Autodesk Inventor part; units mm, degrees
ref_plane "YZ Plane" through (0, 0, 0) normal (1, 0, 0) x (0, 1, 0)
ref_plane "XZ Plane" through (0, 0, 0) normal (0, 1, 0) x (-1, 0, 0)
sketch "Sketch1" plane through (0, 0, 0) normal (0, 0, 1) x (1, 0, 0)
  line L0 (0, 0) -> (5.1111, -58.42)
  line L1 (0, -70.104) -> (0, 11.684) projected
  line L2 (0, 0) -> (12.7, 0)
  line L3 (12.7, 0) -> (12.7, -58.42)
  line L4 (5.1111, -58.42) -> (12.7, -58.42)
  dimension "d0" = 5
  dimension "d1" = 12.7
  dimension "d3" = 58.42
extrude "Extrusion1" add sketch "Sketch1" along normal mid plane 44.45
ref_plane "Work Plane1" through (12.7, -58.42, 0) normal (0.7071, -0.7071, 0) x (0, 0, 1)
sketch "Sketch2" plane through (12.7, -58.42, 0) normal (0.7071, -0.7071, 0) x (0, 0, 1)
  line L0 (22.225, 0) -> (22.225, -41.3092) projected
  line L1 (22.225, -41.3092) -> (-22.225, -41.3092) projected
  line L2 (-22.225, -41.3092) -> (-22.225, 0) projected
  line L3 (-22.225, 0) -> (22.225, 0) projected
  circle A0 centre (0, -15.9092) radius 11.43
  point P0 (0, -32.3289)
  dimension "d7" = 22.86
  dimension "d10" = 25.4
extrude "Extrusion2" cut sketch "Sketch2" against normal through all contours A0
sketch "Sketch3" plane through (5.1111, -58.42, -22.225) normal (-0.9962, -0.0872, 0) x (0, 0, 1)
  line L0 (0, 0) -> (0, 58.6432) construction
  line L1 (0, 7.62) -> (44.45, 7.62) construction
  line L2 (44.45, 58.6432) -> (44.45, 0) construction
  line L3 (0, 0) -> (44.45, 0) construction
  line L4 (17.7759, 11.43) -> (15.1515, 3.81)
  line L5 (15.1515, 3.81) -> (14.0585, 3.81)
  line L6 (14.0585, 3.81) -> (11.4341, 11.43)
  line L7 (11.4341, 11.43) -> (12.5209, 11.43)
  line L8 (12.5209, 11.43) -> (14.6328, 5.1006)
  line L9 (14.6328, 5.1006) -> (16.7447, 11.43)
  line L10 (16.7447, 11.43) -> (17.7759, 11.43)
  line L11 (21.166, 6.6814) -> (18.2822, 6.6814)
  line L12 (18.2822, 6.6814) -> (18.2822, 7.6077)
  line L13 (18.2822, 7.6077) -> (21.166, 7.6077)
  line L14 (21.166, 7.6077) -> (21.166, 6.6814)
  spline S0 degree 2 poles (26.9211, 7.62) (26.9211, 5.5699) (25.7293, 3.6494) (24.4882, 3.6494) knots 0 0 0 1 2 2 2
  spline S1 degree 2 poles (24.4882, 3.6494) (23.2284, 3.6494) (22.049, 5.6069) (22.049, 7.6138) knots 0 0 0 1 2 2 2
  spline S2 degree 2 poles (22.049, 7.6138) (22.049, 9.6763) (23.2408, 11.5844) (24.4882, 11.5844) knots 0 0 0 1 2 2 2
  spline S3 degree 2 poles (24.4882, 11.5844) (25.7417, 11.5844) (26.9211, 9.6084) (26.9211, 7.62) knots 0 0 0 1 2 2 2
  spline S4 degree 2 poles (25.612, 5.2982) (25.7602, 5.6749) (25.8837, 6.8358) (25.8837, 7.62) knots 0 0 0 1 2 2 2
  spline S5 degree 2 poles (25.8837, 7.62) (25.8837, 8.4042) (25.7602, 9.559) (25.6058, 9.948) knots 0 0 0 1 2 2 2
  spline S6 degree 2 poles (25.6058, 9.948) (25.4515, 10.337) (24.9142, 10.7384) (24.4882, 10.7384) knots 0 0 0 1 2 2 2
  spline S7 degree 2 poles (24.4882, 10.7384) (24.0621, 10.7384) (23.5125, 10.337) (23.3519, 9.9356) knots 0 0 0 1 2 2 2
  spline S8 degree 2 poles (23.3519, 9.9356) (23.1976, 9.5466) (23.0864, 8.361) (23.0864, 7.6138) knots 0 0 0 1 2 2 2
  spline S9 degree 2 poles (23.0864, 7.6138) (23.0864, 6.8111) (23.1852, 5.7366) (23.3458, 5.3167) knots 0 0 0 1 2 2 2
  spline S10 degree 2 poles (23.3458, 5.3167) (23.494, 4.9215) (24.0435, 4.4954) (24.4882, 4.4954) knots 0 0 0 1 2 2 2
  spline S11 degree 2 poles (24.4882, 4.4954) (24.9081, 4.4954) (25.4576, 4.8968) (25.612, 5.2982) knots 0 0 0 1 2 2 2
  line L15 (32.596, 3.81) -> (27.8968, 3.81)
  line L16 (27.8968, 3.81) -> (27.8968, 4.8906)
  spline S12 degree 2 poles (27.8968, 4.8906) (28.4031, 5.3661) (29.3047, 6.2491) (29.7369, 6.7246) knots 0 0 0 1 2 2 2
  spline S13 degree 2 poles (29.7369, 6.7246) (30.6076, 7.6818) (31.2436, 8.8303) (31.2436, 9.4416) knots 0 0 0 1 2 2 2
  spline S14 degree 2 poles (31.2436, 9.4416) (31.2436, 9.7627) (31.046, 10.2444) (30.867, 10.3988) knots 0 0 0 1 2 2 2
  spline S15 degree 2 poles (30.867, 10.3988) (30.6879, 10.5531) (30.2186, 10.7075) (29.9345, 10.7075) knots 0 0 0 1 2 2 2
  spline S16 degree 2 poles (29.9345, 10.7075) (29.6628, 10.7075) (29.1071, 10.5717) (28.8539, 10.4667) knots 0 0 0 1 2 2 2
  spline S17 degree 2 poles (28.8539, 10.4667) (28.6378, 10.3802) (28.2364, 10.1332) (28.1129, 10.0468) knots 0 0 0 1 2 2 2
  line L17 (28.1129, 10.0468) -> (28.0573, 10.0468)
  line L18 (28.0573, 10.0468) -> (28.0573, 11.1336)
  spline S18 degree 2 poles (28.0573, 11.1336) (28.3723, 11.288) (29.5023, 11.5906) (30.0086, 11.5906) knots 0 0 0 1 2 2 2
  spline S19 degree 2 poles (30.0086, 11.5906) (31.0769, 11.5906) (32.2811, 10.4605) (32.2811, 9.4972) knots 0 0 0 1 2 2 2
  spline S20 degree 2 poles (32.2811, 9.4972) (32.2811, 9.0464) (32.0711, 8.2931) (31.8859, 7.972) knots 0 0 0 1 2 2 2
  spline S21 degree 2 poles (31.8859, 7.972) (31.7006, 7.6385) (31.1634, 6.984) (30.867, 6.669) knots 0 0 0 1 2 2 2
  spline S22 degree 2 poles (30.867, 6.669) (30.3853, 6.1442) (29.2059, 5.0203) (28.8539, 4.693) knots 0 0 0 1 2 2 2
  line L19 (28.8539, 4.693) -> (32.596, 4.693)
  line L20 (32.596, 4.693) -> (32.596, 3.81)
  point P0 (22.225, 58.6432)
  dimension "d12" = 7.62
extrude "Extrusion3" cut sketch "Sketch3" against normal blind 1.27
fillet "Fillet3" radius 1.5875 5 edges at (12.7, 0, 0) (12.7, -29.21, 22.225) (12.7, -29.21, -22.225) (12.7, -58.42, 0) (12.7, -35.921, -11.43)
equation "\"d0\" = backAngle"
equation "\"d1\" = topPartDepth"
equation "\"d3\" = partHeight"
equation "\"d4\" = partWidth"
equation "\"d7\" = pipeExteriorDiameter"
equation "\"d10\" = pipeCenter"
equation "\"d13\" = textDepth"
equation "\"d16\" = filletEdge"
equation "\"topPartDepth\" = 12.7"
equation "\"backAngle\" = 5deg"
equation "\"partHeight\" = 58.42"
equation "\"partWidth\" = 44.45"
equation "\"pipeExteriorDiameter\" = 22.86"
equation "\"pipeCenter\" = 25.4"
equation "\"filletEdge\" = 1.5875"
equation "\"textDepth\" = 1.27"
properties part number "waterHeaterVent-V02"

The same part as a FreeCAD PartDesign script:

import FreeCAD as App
import Part
import Sketcher
from FreeCAD import Vector
Q = App.Units.Quantity


def edges_at(feature, points):
    """Names of the edges that pass closest to the given points."""
    edges = feature.Shape.Edges
    near = lambda p: min(range(len(edges)), key=lambda i: edges[i].distToShape(Part.Vertex(*p))[0])
    return sorted({f"Edge{near(p) + 1}" for p in points})

doc = App.newDocument("Part")
body = doc.addObject("PartDesign::Body", "Body")

# Sketch on XY plane
sketch1 = doc.addObject("Sketcher::SketchObject", "Sketch")
body.addObject(sketch1)
sketch1.AttachmentSupport = (doc.XY_Plane, [""])
sketch1.MapMode = "FlatFace"
sketch1.addGeometry([
    Part.LineSegment(Vector(12.7, 0, 0), Vector(0, 0, 0)),
    Part.LineSegment(Vector(0, 0, 0), Vector(5.1111, -58.42, 0)),
    Part.LineSegment(Vector(5.1111, -58.42, 0), Vector(12.7, -58.42, 0)),
    Part.LineSegment(Vector(12.7, -58.42, 0), Vector(12.7, 0, 0)),
], False)
sketch1.addConstraint([
    Sketcher.Constraint("Coincident", 0, 2, 1, 1),
    Sketcher.Constraint("Coincident", 1, 2, 2, 1),
    Sketcher.Constraint("Coincident", 2, 2, 3, 1),
    Sketcher.Constraint("Coincident", 3, 2, 0, 1),
    Sketcher.Constraint("Horizontal", 0),
    Sketcher.Constraint("Horizontal", 2),
    Sketcher.Constraint("Vertical", 3),
    Sketcher.Constraint("Coincident", 0, 2, -1, 1),
    Sketcher.Constraint("DistanceX", 0, 2, 0, 1, Q("0.5 in")),
    Sketcher.Constraint("DistanceY", 3, 1, 3, 2, Q("2.3 in")),
    Sketcher.Constraint("Angle", 1, Q("-85 deg")),
])
pad1 = doc.addObject("PartDesign::Pad", "Pad")
body.addObject(pad1)
pad1.Profile = sketch1
pad1.Length = Q("1.75 in")
pad1.Midplane = True

# Sketch on an angled plane
sketch2 = doc.addObject("Sketcher::SketchObject", "Sketch001")
body.addObject(sketch2)
sketch2.Placement = App.Placement(Vector(12.7, -58.42, 0), App.Rotation(Vector(0, 0, 1), Vector(-0.707106781, -0.707106781, 0), Vector(0.707106781, -0.707106781, 0), "ZXY"))
sketch2.addGeometry(Part.Circle(Vector(0, -15.9092, 0), Vector(0, 0, 1), 11.43), False)
sketch2.addConstraint([
    Sketcher.Constraint("PointOnObject", 0, 3, -2),
    Sketcher.Constraint("Diameter", 0, Q("0.9 in")),
    Sketcher.Constraint("DistanceY", 0, 3, -1, 1, 15.9092),
])
pocket1 = doc.addObject("PartDesign::Pocket", "Pocket")
body.addObject(pocket1)
pocket1.Profile = sketch2
pocket1.Type = "ThroughAll"

# Sketch on an angled plane
sketch3 = doc.addObject("Sketcher::SketchObject", "Sketch002")
body.addObject(sketch3)
sketch3.Placement = App.Placement(Vector(5.1111, -58.42, -22.225), App.Rotation(Vector(0, 0, 1), Vector(-0.087155743, 0.996194698, 0), Vector(-0.996194698, -0.087155743, 0), "ZXY"))
sketch3.addGeometry([
    Part.LineSegment(Vector(15.1515, 3.81, 0), Vector(17.7759, 11.43, 0)),  # 0
    Part.LineSegment(Vector(17.7759, 11.43, 0), Vector(16.7447, 11.43, 0)),  # 1
    Part.LineSegment(Vector(16.7447, 11.43, 0), Vector(14.6328, 5.1006, 0)),  # 2
    Part.LineSegment(Vector(14.6328, 5.1006, 0), Vector(12.5209, 11.43, 0)),  # 3
    Part.LineSegment(Vector(12.5209, 11.43, 0), Vector(11.4341, 11.43, 0)),  # 4
    Part.LineSegment(Vector(11.4341, 11.43, 0), Vector(14.0585, 3.81, 0)),  # 5
    Part.LineSegment(Vector(14.0585, 3.81, 0), Vector(15.1515, 3.81, 0)),  # 6
    Part.LineSegment(Vector(18.2822, 6.6814, 0), Vector(21.166, 6.6814, 0)),  # 7
    Part.LineSegment(Vector(21.166, 6.6814, 0), Vector(21.166, 7.6077, 0)),  # 8
    Part.LineSegment(Vector(21.166, 7.6077, 0), Vector(18.2822, 7.6077, 0)),  # 9
    Part.LineSegment(Vector(18.2822, 7.6077, 0), Vector(18.2822, 6.6814, 0)),  # 10
    Part.BSplineCurve([Vector(26.9211, 7.62, 0), Vector(26.9211, 5.5699, 0), Vector(25.7293, 3.6494, 0), Vector(24.4882, 3.6494, 0)], [3, 1, 3], [0, 1, 2], False, 2, [1, 1, 1, 1], False),  # 11
    Part.BSplineCurve([Vector(24.4882, 11.5844, 0), Vector(25.7417, 11.5844, 0), Vector(26.9211, 9.6084, 0), Vector(26.9211, 7.62, 0)], [3, 1, 3], [0, 1, 2], False, 2, [1, 1, 1, 1], False),  # 12
    Part.BSplineCurve([Vector(22.049, 7.6138, 0), Vector(22.049, 9.6763, 0), Vector(23.2408, 11.5844, 0), Vector(24.4882, 11.5844, 0)], [3, 1, 3], [0, 1, 2], False, 2, [1, 1, 1, 1], False),  # 13
    Part.BSplineCurve([Vector(24.4882, 3.6494, 0), Vector(23.2284, 3.6494, 0), Vector(22.049, 5.6069, 0), Vector(22.049, 7.6138, 0)], [3, 1, 3], [0, 1, 2], False, 2, [1, 1, 1, 1], False),  # 14
    Part.BSplineCurve([Vector(25.612, 5.2982, 0), Vector(25.7602, 5.6749, 0), Vector(25.8837, 6.8358, 0), Vector(25.8837, 7.62, 0)], [3, 1, 3], [0, 1, 2], False, 2, [1, 1, 1, 1], False),  # 15
    Part.BSplineCurve([Vector(24.4882, 4.4954, 0), Vector(24.9081, 4.4954, 0), Vector(25.4576, 4.8968, 0), Vector(25.612, 5.2982, 0)], [3, 1, 3], [0, 1, 2], False, 2, [1, 1, 1, 1], False),  # 16
    Part.BSplineCurve([Vector(23.3458, 5.3167, 0), Vector(23.494, 4.9215, 0), Vector(24.0435, 4.4954, 0), Vector(24.4882, 4.4954, 0)], [3, 1, 3], [0, 1, 2], False, 2, [1, 1, 1, 1], False),  # 17
    Part.BSplineCurve([Vector(23.0864, 7.6138, 0), Vector(23.0864, 6.8111, 0), Vector(23.1852, 5.7366, 0), Vector(23.3458, 5.3167, 0)], [3, 1, 3], [0, 1, 2], False, 2, [1, 1, 1, 1], False),  # 18
    Part.BSplineCurve([Vector(23.3519, 9.9356, 0), Vector(23.1976, 9.5466, 0), Vector(23.0864, 8.361, 0), Vector(23.0864, 7.6138, 0)], [3, 1, 3], [0, 1, 2], False, 2, [1, 1, 1, 1], False),  # 19
    Part.BSplineCurve([Vector(24.4882, 10.7384, 0), Vector(24.0621, 10.7384, 0), Vector(23.5125, 10.337, 0), Vector(23.3519, 9.9356, 0)], [3, 1, 3], [0, 1, 2], False, 2, [1, 1, 1, 1], False),  # 20
    Part.BSplineCurve([Vector(25.6058, 9.948, 0), Vector(25.4515, 10.337, 0), Vector(24.9142, 10.7384, 0), Vector(24.4882, 10.7384, 0)], [3, 1, 3], [0, 1, 2], False, 2, [1, 1, 1, 1], False),  # 21
    Part.BSplineCurve([Vector(25.8837, 7.62, 0), Vector(25.8837, 8.4042, 0), Vector(25.7602, 9.559, 0), Vector(25.6058, 9.948, 0)], [3, 1, 3], [0, 1, 2], False, 2, [1, 1, 1, 1], False),  # 22
    Part.LineSegment(Vector(27.8968, 3.81, 0), Vector(32.596, 3.81, 0)),  # 23
    Part.LineSegment(Vector(32.596, 3.81, 0), Vector(32.596, 4.693, 0)),  # 24
    Part.LineSegment(Vector(32.596, 4.693, 0), Vector(28.8539, 4.693, 0)),  # 25
    Part.BSplineCurve([Vector(30.867, 6.669, 0), Vector(30.3853, 6.1442, 0), Vector(29.2059, 5.0203, 0), Vector(28.8539, 4.693, 0)], [3, 1, 3], [0, 1, 2], False, 2, [1, 1, 1, 1], False),  # 26
    Part.BSplineCurve([Vector(31.8859, 7.972, 0), Vector(31.7006, 7.6385, 0), Vector(31.1634, 6.984, 0), Vector(30.867, 6.669, 0)], [3, 1, 3], [0, 1, 2], False, 2, [1, 1, 1, 1], False),  # 27
    Part.BSplineCurve([Vector(32.2811, 9.4972, 0), Vector(32.2811, 9.0464, 0), Vector(32.0711, 8.2931, 0), Vector(31.8859, 7.972, 0)], [3, 1, 3], [0, 1, 2], False, 2, [1, 1, 1, 1], False),  # 28
    Part.BSplineCurve([Vector(30.0086, 11.5906, 0), Vector(31.0769, 11.5906, 0), Vector(32.2811, 10.4605, 0), Vector(32.2811, 9.4972, 0)], [3, 1, 3], [0, 1, 2], False, 2, [1, 1, 1, 1], False),  # 29
    Part.BSplineCurve([Vector(28.0573, 11.1336, 0), Vector(28.3723, 11.288, 0), Vector(29.5023, 11.5906, 0), Vector(30.0086, 11.5906, 0)], [3, 1, 3], [0, 1, 2], False, 2, [1, 1, 1, 1], False),  # 30
    Part.LineSegment(Vector(28.0573, 11.1336, 0), Vector(28.0573, 10.0468, 0)),  # 31
    Part.LineSegment(Vector(28.0573, 10.0468, 0), Vector(28.1129, 10.0468, 0)),  # 32
    Part.BSplineCurve([Vector(28.8539, 10.4667, 0), Vector(28.6378, 10.3802, 0), Vector(28.2364, 10.1332, 0), Vector(28.1129, 10.0468, 0)], [3, 1, 3], [0, 1, 2], False, 2, [1, 1, 1, 1], False),  # 33
    Part.BSplineCurve([Vector(29.9345, 10.7075, 0), Vector(29.6628, 10.7075, 0), Vector(29.1071, 10.5717, 0), Vector(28.8539, 10.4667, 0)], [3, 1, 3], [0, 1, 2], False, 2, [1, 1, 1, 1], False),  # 34
    Part.BSplineCurve([Vector(30.867, 10.3988, 0), Vector(30.6879, 10.5531, 0), Vector(30.2186, 10.7075, 0), Vector(29.9345, 10.7075, 0)], [3, 1, 3], [0, 1, 2], False, 2, [1, 1, 1, 1], False),  # 35
    Part.BSplineCurve([Vector(31.2436, 9.4416, 0), Vector(31.2436, 9.7627, 0), Vector(31.046, 10.2444, 0), Vector(30.867, 10.3988, 0)], [3, 1, 3], [0, 1, 2], False, 2, [1, 1, 1, 1], False),  # 36
    Part.BSplineCurve([Vector(29.7369, 6.7246, 0), Vector(30.6076, 7.6818, 0), Vector(31.2436, 8.8303, 0), Vector(31.2436, 9.4416, 0)], [3, 1, 3], [0, 1, 2], False, 2, [1, 1, 1, 1], False),  # 37
    Part.BSplineCurve([Vector(27.8968, 4.8906, 0), Vector(28.4031, 5.3661, 0), Vector(29.3047, 6.2491, 0), Vector(29.7369, 6.7246, 0)], [3, 1, 3], [0, 1, 2], False, 2, [1, 1, 1, 1], False),  # 38
    Part.LineSegment(Vector(27.8968, 4.8906, 0), Vector(27.8968, 3.81, 0)),  # 39
], False)
sketch3.addConstraint([
    Sketcher.Constraint("Block", 11),
    Sketcher.Constraint("Block", 12),
    Sketcher.Constraint("Block", 13),
    Sketcher.Constraint("Block", 14),
    Sketcher.Constraint("Block", 15),
    Sketcher.Constraint("Block", 16),
    Sketcher.Constraint("Block", 17),
    Sketcher.Constraint("Block", 18),
    Sketcher.Constraint("Block", 19),
    Sketcher.Constraint("Block", 20),
    Sketcher.Constraint("Block", 21),
    Sketcher.Constraint("Block", 22),
    Sketcher.Constraint("Block", 26),
    Sketcher.Constraint("Block", 27),
    Sketcher.Constraint("Block", 28),
    Sketcher.Constraint("Block", 29),
    Sketcher.Constraint("Block", 30),
    Sketcher.Constraint("Block", 33),
    Sketcher.Constraint("Block", 34),
    Sketcher.Constraint("Block", 35),
    Sketcher.Constraint("Block", 36),
    Sketcher.Constraint("Block", 37),
    Sketcher.Constraint("Block", 38),
    Sketcher.Constraint("Coincident", 0, 2, 1, 1),
    Sketcher.Constraint("Coincident", 1, 2, 2, 1),
    Sketcher.Constraint("Coincident", 2, 2, 3, 1),
    Sketcher.Constraint("Coincident", 3, 2, 4, 1),
    Sketcher.Constraint("Coincident", 4, 2, 5, 1),
    Sketcher.Constraint("Coincident", 5, 2, 6, 1),
    Sketcher.Constraint("Coincident", 6, 2, 0, 1),
    Sketcher.Constraint("Coincident", 7, 2, 8, 1),
    Sketcher.Constraint("Coincident", 8, 2, 9, 1),
    Sketcher.Constraint("Coincident", 9, 2, 10, 1),
    Sketcher.Constraint("Coincident", 10, 2, 7, 1),
    Sketcher.Constraint("Coincident", 23, 2, 24, 1),
    Sketcher.Constraint("Coincident", 24, 2, 25, 1),
    Sketcher.Constraint("Coincident", 25, 2, 26, 2),
    Sketcher.Constraint("Coincident", 30, 1, 31, 1),
    Sketcher.Constraint("Coincident", 31, 2, 32, 1),
    Sketcher.Constraint("Coincident", 32, 2, 33, 2),
    Sketcher.Constraint("Coincident", 38, 1, 39, 1),
    Sketcher.Constraint("Coincident", 39, 2, 23, 1),
    Sketcher.Constraint("Horizontal", 1),
    Sketcher.Constraint("Horizontal", 4),
    Sketcher.Constraint("Horizontal", 6),
    Sketcher.Constraint("Horizontal", 7),
    Sketcher.Constraint("Vertical", 8),
    Sketcher.Constraint("Horizontal", 9),
    Sketcher.Constraint("Vertical", 10),
    Sketcher.Constraint("Horizontal", 23),
    Sketcher.Constraint("Vertical", 24),
    Sketcher.Constraint("Horizontal", 25),
    Sketcher.Constraint("Vertical", 31),
    Sketcher.Constraint("Horizontal", 32),
    Sketcher.Constraint("Vertical", 39),
    Sketcher.Constraint("DistanceY", 5, 2, 3, 2, Q("0.3 in")),
    Sketcher.Constraint("DistanceY", 5, 2, 1, 2, Q("0.3 in")),
    Sketcher.Constraint("DistanceY", 23, 2, 0, 2, Q("0.3 in")),
    Sketcher.Constraint("DistanceX", 23, 1, 23, 2, Q("0.185 in")),
    Sketcher.Constraint("DistanceY", -1, 1, 0, 2, Q("0.45 in")),
    Sketcher.Constraint("DistanceX", 7, 2, 23, 2, Q("0.45 in")),
    Sketcher.Constraint("DistanceX", 1, 2, 1, 1, Q("0.0406 in")),
    Sketcher.Constraint("Distance", 0, Q("0.3173 in")),
    Sketcher.Constraint("Distance", 2, Q("0.2627 in")),
    Sketcher.Constraint("Distance", 3, Q("0.2627 in")),
    Sketcher.Constraint("Distance", 5, Q("0.3173 in")),
    Sketcher.Constraint("DistanceX", 4, 2, 4, 1, 1.0868),
    Sketcher.Constraint("DistanceX", 6, 1, 6, 2, 1.093),
    Sketcher.Constraint("DistanceX", 7, 1, 7, 2, 2.8838),
    Sketcher.Constraint("DistanceY", 8, 1, 8, 2, 0.9263),
    Sketcher.Constraint("DistanceX", -1, 1, 2, 2, Q("0.5761 in")),
    Sketcher.Constraint("DistanceY", 2, 2, 8, 2, Q("0.0987 in")),
])
pocket2 = doc.addObject("PartDesign::Pocket", "Pocket001")
body.addObject(pocket2)
pocket2.Profile = sketch3
pocket2.Length = Q("0.05 in")
doc.recompute()

fillet = doc.addObject("PartDesign::Fillet", "Fillet")
body.addObject(fillet)
fillet.Base = (pocket2, edges_at(pocket2, [
    (12.7, 0, 0),
    (12.7, -29.21, 22.225),
    (12.7, -29.21, -22.225),
    (12.7, -58.42, 0),
    (12.7, -35.921, -11.43),
]))
fillet.Radius = Q("0.0625 in")

doc.recompute()
